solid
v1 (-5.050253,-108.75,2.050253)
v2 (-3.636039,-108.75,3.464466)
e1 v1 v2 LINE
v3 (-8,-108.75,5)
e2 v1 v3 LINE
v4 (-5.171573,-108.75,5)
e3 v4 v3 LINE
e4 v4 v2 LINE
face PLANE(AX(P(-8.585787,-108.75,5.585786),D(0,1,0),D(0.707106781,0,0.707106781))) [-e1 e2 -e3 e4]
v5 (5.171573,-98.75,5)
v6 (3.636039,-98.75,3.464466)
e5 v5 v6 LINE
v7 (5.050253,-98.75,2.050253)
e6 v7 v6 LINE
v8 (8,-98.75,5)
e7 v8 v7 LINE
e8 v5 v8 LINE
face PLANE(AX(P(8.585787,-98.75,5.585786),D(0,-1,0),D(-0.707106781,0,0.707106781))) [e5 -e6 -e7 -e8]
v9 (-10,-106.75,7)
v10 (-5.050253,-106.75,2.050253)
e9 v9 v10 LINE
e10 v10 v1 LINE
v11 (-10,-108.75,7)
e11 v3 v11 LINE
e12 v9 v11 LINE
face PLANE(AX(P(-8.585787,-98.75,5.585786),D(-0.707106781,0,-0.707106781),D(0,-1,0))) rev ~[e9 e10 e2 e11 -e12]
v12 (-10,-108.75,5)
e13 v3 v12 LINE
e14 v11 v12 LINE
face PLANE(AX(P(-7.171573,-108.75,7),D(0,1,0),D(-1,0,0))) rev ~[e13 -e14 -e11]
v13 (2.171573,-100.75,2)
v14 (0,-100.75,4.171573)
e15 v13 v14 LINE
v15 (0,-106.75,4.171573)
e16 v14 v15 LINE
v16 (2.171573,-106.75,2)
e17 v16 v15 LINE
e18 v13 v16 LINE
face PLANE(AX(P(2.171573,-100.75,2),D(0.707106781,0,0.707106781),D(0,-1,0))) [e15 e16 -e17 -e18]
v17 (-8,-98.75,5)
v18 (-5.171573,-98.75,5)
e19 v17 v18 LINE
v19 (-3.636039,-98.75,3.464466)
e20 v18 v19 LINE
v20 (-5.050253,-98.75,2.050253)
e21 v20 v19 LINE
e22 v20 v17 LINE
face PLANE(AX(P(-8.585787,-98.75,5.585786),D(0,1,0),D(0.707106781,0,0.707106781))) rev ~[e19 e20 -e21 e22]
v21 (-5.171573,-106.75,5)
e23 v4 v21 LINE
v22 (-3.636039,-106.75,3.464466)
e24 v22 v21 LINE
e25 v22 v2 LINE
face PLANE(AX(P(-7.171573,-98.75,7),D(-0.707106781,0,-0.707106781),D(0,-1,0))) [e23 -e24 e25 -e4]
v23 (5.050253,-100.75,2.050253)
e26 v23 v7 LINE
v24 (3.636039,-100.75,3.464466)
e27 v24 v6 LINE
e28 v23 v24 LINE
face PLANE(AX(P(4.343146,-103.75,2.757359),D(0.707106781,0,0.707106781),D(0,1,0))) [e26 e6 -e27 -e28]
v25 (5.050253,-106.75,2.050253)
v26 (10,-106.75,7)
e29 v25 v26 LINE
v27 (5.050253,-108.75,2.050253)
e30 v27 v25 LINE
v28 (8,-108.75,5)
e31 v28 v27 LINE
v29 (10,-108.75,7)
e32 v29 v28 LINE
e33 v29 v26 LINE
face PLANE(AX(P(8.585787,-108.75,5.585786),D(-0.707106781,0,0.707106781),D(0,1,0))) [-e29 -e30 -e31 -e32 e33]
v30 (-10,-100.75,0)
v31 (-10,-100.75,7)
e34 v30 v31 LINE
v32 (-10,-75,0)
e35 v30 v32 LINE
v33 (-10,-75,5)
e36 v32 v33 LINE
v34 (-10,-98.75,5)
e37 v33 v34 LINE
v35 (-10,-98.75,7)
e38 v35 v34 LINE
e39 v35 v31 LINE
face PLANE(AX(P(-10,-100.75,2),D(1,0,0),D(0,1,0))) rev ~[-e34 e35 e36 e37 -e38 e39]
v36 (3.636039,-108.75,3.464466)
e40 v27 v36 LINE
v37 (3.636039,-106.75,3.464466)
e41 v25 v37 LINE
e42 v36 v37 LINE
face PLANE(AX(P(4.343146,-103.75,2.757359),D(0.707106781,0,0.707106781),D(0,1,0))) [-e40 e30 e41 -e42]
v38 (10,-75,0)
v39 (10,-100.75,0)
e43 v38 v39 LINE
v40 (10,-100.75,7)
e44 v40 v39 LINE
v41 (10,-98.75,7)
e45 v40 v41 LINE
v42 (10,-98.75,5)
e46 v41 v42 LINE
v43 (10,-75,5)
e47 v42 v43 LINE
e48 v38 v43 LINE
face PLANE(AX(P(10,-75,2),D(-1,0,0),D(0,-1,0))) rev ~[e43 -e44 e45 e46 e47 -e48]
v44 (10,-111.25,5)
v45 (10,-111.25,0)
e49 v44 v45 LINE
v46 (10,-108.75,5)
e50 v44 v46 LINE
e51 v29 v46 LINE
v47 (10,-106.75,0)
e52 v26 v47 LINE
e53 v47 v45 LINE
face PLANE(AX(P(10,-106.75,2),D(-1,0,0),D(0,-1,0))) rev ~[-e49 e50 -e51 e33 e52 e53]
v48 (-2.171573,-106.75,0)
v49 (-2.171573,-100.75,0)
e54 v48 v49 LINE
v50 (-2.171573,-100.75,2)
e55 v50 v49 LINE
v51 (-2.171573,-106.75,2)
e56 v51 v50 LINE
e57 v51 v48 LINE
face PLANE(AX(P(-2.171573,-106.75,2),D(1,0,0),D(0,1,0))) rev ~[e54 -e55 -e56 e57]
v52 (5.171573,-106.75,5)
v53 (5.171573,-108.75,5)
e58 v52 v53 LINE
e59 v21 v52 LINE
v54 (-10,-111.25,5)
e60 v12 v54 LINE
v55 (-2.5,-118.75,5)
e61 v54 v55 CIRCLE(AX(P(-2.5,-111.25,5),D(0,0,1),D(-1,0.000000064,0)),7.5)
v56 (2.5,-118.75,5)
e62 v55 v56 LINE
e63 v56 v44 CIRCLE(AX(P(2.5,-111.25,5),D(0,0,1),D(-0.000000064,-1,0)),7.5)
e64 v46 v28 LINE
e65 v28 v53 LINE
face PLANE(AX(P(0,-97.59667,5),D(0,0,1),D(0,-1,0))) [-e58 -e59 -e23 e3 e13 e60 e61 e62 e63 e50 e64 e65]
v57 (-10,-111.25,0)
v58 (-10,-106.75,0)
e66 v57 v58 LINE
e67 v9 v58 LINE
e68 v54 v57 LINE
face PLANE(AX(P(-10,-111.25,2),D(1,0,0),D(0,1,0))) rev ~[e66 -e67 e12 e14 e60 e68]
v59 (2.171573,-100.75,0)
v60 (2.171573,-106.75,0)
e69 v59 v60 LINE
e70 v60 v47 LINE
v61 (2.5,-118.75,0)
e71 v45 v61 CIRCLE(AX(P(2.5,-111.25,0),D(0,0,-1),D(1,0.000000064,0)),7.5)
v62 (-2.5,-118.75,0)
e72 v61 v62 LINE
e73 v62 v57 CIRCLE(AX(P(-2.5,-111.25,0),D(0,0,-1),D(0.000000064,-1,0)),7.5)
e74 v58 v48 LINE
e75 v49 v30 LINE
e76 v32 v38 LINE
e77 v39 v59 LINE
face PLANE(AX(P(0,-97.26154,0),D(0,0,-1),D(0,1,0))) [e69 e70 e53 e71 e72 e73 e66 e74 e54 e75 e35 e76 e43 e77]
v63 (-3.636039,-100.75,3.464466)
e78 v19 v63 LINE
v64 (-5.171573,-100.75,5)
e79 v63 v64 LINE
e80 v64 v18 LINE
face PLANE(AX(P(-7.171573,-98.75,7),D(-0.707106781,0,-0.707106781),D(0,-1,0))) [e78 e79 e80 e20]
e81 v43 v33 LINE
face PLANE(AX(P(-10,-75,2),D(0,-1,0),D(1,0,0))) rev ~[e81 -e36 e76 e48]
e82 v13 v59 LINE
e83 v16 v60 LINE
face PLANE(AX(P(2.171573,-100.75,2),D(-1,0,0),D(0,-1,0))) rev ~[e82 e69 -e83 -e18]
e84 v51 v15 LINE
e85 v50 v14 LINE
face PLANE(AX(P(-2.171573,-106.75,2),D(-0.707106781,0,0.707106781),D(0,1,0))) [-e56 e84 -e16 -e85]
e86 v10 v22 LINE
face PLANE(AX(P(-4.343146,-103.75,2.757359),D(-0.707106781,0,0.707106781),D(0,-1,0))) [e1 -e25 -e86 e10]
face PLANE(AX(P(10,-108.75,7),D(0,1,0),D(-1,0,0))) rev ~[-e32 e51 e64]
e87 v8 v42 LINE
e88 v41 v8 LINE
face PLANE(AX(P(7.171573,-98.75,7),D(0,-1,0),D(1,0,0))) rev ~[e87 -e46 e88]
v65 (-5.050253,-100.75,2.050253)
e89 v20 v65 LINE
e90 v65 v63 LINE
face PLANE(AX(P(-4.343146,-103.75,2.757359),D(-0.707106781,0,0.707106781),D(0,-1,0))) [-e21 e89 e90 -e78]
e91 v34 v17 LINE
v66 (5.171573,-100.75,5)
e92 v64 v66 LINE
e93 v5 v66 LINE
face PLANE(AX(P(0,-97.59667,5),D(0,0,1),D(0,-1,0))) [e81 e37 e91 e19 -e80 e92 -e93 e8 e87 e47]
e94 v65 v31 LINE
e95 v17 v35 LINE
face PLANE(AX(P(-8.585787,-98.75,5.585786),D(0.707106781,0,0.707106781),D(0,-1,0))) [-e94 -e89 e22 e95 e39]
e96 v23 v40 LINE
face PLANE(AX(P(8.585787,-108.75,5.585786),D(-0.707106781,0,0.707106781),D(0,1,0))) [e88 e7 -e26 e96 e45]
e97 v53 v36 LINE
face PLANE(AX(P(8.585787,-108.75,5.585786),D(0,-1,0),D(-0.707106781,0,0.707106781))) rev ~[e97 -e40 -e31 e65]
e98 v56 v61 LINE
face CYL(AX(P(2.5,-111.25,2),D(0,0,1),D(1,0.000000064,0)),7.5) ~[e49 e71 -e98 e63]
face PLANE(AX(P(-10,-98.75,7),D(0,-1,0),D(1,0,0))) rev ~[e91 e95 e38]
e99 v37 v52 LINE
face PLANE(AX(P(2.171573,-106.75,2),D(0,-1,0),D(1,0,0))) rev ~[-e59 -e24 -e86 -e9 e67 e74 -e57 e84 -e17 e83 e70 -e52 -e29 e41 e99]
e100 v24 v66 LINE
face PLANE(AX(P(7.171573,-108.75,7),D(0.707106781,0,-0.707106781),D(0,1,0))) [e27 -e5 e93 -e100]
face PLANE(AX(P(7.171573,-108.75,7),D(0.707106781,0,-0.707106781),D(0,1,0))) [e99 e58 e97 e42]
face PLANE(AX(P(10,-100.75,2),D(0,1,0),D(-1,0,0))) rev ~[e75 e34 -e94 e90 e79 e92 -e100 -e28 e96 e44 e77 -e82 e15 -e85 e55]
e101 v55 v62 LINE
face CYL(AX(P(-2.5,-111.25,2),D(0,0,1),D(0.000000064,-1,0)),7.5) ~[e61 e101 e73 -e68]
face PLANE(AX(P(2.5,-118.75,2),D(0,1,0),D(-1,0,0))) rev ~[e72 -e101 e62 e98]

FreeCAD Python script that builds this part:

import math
import FreeCAD as App
import Part
import Sketcher

doc = App.newDocument("Part")
params = doc.addObject("Spreadsheet::Sheet", "Params")
for row, (alias, value) in enumerate([
    ("sketch1_radius", "7.5 mm"),
    ("sketch1_width", "20 mm"),
    ("sketch1_height", "36.25 mm"),
    ("pad1_length", "5 mm"),
    ("sketch2_height", "5 mm"),
    ("sketch2_length", "2.000001 mm"),
    ("pocket1_length", "3 mm"),
    ("pocket1_length2", "3 mm"),
    ("sketch3_width", "10 mm"),
    ("sketch3_height", "2 mm"),
    ("pocket2_length", "5 mm"),
    ("pocket2_length2", "2 mm"),
    ("sketch4_width", "10 mm"),
    ("sketch4_height", "2 mm"),
    ("pocket3_length", "5 mm"),
    ("pocket3_length2", "2 mm"),
    ("sketch5_width", "6 mm"),
    ("sketch5_height", "5 mm"),
    ("pocket4_length", "5 mm"),
    ("sketch6_width", "6 mm"),
    ("sketch6_height", "5 mm"),
    ("pocket5_length", "5 mm"),
    ("sketch7_radius", "7.5 mm"),
    ("sketch7_width", "5 mm"),
    ("sketch7_height", "6 mm"),
    ("sketch7_height2", "4.5 mm"),
    ("sketch7_height3", "25.75 mm"),
    ("pad2_length", "2 mm"),
    ("sketch8_radius", "7.5 mm"),
    ("sketch8_width", "20 mm"),
    ("sketch8_height", "6 mm"),
    ("sketch8_height2", "2 mm"),
    ("sketch8_height3", "2.5 mm"),
    ("pocket6_length", "2 mm"),
    ("sketch9_width", "6 mm"),
    ("pocket7_length", "5 mm"),
    ("sketch10_width", "6 mm"),
    ("pocket8_length", "5 mm"),
], start=1):
    params.set(f"A{row}", alias)
    params.set(f"B{row}", "=" + value)
    params.setAlias(f"B{row}", alias)

body = doc.addObject("PartDesign::Body", "Body")

sketch1 = body.newObject("Sketcher::SketchObject", "Sketch")
sketch1.AttachmentSupport = (doc.getObject("XY_Plane"), [""])
sketch1.MapMode = "FlatFace"
sketch1.addGeometry(Part.LineSegment(App.Vector(-10, -28.75, 0), App.Vector(10, -28.75, 0)), False)
sketch1.addGeometry(Part.LineSegment(App.Vector(10, -28.75, 0), App.Vector(10, 7.5, 0)), False)
sketch1.addGeometry(Part.ArcOfCircle(Part.Circle(App.Vector(2.5, 7.5, 0), App.Vector(0, 0, 1), 7.5), math.radians(-0.000004), math.radians(90.000004)), False)
sketch1.addGeometry(Part.LineSegment(App.Vector(2.5, 15, 0), App.Vector(-2.5, 15, 0)), False)
sketch1.addGeometry(Part.ArcOfCircle(Part.Circle(App.Vector(-2.5, 7.5, 0), App.Vector(0, 0, 1), 7.5), math.radians(89.999996), math.radians(180.000004)), False)
sketch1.addGeometry(Part.LineSegment(App.Vector(-10, 7.5, 0), App.Vector(-10, -28.75, 0)), False)
sketch1.addConstraint(Sketcher.Constraint("Coincident", 0, 2, 1, 1))
sketch1.addConstraint(Sketcher.Constraint("Tangent", 1, 2, 2, 1))
sketch1.addConstraint(Sketcher.Constraint("Tangent", 2, 2, 3, 1))
sketch1.addConstraint(Sketcher.Constraint("Tangent", 3, 2, 4, 1))
sketch1.addConstraint(Sketcher.Constraint("Tangent", 4, 2, 5, 1))
sketch1.addConstraint(Sketcher.Constraint("Coincident", 5, 2, 0, 1))
sketch1.addConstraint(Sketcher.Constraint("Horizontal", 0))
sketch1.addConstraint(Sketcher.Constraint("Vertical", 1))
sketch1.addConstraint(Sketcher.Constraint("Horizontal", 3))
sketch1.addConstraint(Sketcher.Constraint("Vertical", 5))
sketch1.addConstraint(Sketcher.Constraint("Equal", 2, 4))
sketch1.addConstraint(Sketcher.Constraint("Radius", 2, 7.5))
sketch1.addConstraint(Sketcher.Constraint("DistanceX", 0, 1, 0, 2, 20.0))
sketch1.addConstraint(Sketcher.Constraint("DistanceX", -1, 1, 0, 2, 10.0))
sketch1.addConstraint(Sketcher.Constraint("DistanceY", -1, 1, 2, 2, 15.0))
sketch1.addConstraint(Sketcher.Constraint("DistanceY", 1, 1, 1, 2, 36.25))
sketch1.setExpression("Constraints[11]", "Params.sketch1_radius")
sketch1.setExpression("Constraints[12]", "Params.sketch1_width")
sketch1.setExpression("Constraints[15]", "Params.sketch1_height")
pad1 = body.newObject("PartDesign::Pad", "Pad")
pad1.Profile = sketch1
pad1.setExpression("Length", "Params.pad1_length")

sketch2 = body.newObject("Sketcher::SketchObject", "Sketch001")
sketch2.AttachmentSupport = (doc.getObject("XZ_Plane"), [""])
sketch2.MapMode = "FlatFace"
sketch2.addGeometry(Part.LineSegment(App.Vector(-10, 5, 0), App.Vector(-10, 0, 0)), False)
sketch2.addGeometry(Part.LineSegment(App.Vector(-10, 0, 0), App.Vector(-2.171573, 0, 0)), False)
sketch2.addGeometry(Part.LineSegment(App.Vector(-2.171573, 0, 0), App.Vector(-8.585786, 6.414214, 0)), False)
sketch2.addGeometry(Part.LineSegment(App.Vector(-8.585786, 6.414214, 0), App.Vector(-10, 5, 0)), False)
sketch2.addGeometry(Part.LineSegment(App.Vector(10, 0, 0), App.Vector(10, 5, 0)), False)
sketch2.addGeometry(Part.LineSegment(App.Vector(10, 5, 0), App.Vector(8.585786, 6.414214, 0)), False)
sketch2.addGeometry(Part.LineSegment(App.Vector(8.585786, 6.414214, 0), App.Vector(2.171573, 0, 0)), False)
sketch2.addGeometry(Part.LineSegment(App.Vector(2.171573, 0, 0), App.Vector(10, 0, 0)), False)
sketch2.addConstraint(Sketcher.Constraint("Coincident", 0, 2, 1, 1))
sketch2.addConstraint(Sketcher.Constraint("Coincident", 1, 2, 2, 1))
sketch2.addConstraint(Sketcher.Constraint("Coincident", 2, 2, 3, 1))
sketch2.addConstraint(Sketcher.Constraint("Coincident", 3, 2, 0, 1))
sketch2.addConstraint(Sketcher.Constraint("Coincident", 4, 2, 5, 1))
sketch2.addConstraint(Sketcher.Constraint("Coincident", 5, 2, 6, 1))
sketch2.addConstraint(Sketcher.Constraint("Coincident", 6, 2, 7, 1))
sketch2.addConstraint(Sketcher.Constraint("Coincident", 7, 2, 4, 1))
sketch2.addConstraint(Sketcher.Constraint("Vertical", 0))
sketch2.addConstraint(Sketcher.Constraint("Horizontal", 1))
sketch2.addConstraint(Sketcher.Constraint("Vertical", 4))
sketch2.addConstraint(Sketcher.Constraint("Horizontal", 7))
sketch2.addConstraint(Sketcher.Constraint("Symmetric", 1, 2, 6, 2, -1, 1))
sketch2.addConstraint(Sketcher.Constraint("Symmetric", 3, 2, 4, 2, -2))
sketch2.addConstraint(Sketcher.Constraint("Symmetric", 2, 2, 5, 2, -2))
sketch2.addConstraint(Sketcher.Constraint("PointOnObject", 0, 2, -1))
sketch2.addConstraint(Sketcher.Constraint("Perpendicular", 2, 3))
sketch2.addConstraint(Sketcher.Constraint("Perpendicular", 3, 5))
sketch2.addConstraint(Sketcher.Constraint("DistanceY", 0, 2, 0, 1, 5.0))
sketch2.addConstraint(Sketcher.Constraint("Distance", 3, 2.000001))
sketch2.addConstraint(Sketcher.Constraint("DistanceX", 0, 2, -1, 1, 10.0))
sketch2.setExpression("Constraints[18]", "Params.sketch2_height")
sketch2.setExpression("Constraints[19]", "Params.sketch2_length")
pocket1 = body.newObject("PartDesign::Pocket", "Pocket")
pocket1.Profile = sketch2
pocket1.Type = "TwoLengths"
pocket1.setExpression("Length", "Params.pocket1_length")
pocket1.setExpression("Length2", "Params.pocket1_length2")

sketch3 = body.newObject("Sketcher::SketchObject", "Sketch002")
sketch3.Placement = App.Placement(App.Vector(-7.171573, 3, 5), App.Rotation(App.Vector(0, -1, 0), App.Vector(0.707106781, 0, 0.707106781), App.Vector(-0.707106781, 0, 0.707106781), "ZXY"))
sketch3.addGeometry(Part.LineSegment(App.Vector(-2, 0, 0), App.Vector(-2, -2, 0)), False)
sketch3.addGeometry(Part.LineSegment(App.Vector(-2, -2, 0), App.Vector(8, -2, 0)), False)
sketch3.addGeometry(Part.LineSegment(App.Vector(8, -2, 0), App.Vector(8, 0, 0)), False)
sketch3.addGeometry(Part.LineSegment(App.Vector(8, 0, 0), App.Vector(-2, 0, 0)), False)
sketch3.addConstraint(Sketcher.Constraint("Coincident", 0, 2, 1, 1))
sketch3.addConstraint(Sketcher.Constraint("Coincident", 1, 2, 2, 1))
sketch3.addConstraint(Sketcher.Constraint("Coincident", 2, 2, 3, 1))
sketch3.addConstraint(Sketcher.Constraint("Coincident", 3, 2, 0, 1))
sketch3.addConstraint(Sketcher.Constraint("Vertical", 0))
sketch3.addConstraint(Sketcher.Constraint("Horizontal", 1))
sketch3.addConstraint(Sketcher.Constraint("Vertical", 2))
sketch3.addConstraint(Sketcher.Constraint("Horizontal", 3))
sketch3.addConstraint(Sketcher.Constraint("PointOnObject", 2, 2, -1))
sketch3.addConstraint(Sketcher.Constraint("DistanceX", 1, 1, 1, 2, 10.0))
sketch3.addConstraint(Sketcher.Constraint("DistanceY", 0, 2, 0, 1, 2.0))
sketch3.addConstraint(Sketcher.Constraint("DistanceX", 0, 2, -1, 1, 2.0))
sketch3.setExpression("Constraints[9]", "Params.sketch3_width")
sketch3.setExpression("Constraints[10]", "Params.sketch3_height")
pocket2 = body.newObject("PartDesign::Pocket", "Pocket001")
pocket2.Profile = sketch3
pocket2.Type = "TwoLengths"
pocket2.setExpression("Length", "Params.pocket2_length")
pocket2.setExpression("Length2", "Params.pocket2_length2")

sketch4 = body.newObject("Sketcher::SketchObject", "Sketch003")
sketch4.Placement = App.Placement(App.Vector(7.171573, 3, 5), App.Rotation(App.Vector(0, 1, 0), App.Vector(-0.707106781, 0, 0.707106781), App.Vector(0.707106781, 0, 0.707106781), "ZXY"))
sketch4.addGeometry(Part.LineSegment(App.Vector(-8, 0, 0), App.Vector(-8, -2, 0)), False)
sketch4.addGeometry(Part.LineSegment(App.Vector(-8, -2, 0), App.Vector(2, -2, 0)), False)
sketch4.addGeometry(Part.LineSegment(App.Vector(2, -2, 0), App.Vector(2, 0, 0)), False)
sketch4.addGeometry(Part.LineSegment(App.Vector(2, 0, 0), App.Vector(-8, 0, 0)), False)
sketch4.addConstraint(Sketcher.Constraint("Coincident", 0, 2, 1, 1))
sketch4.addConstraint(Sketcher.Constraint("Coincident", 1, 2, 2, 1))
sketch4.addConstraint(Sketcher.Constraint("Coincident", 2, 2, 3, 1))
sketch4.addConstraint(Sketcher.Constraint("Coincident", 3, 2, 0, 1))
sketch4.addConstraint(Sketcher.Constraint("Vertical", 0))
sketch4.addConstraint(Sketcher.Constraint("Horizontal", 1))
sketch4.addConstraint(Sketcher.Constraint("Vertical", 2))
sketch4.addConstraint(Sketcher.Constraint("Horizontal", 3))
sketch4.addConstraint(Sketcher.Constraint("PointOnObject", 2, 2, -1))
sketch4.addConstraint(Sketcher.Constraint("DistanceX", 1, 1, 1, 2, 10.0))
sketch4.addConstraint(Sketcher.Constraint("DistanceY", 0, 2, 0, 1, 2.0))
sketch4.addConstraint(Sketcher.Constraint("DistanceX", 0, 2, -1, 1, 8.0))
sketch4.setExpression("Constraints[9]", "Params.sketch4_width")
sketch4.setExpression("Constraints[10]", "Params.sketch4_height")
pocket3 = body.newObject("PartDesign::Pocket", "Pocket002")
pocket3.Profile = sketch4
pocket3.Type = "TwoLengths"
pocket3.setExpression("Length", "Params.pocket3_length")
pocket3.setExpression("Length2", "Params.pocket3_length2")

sketch5 = body.newObject("Sketcher::SketchObject", "Sketch004")
sketch5.Placement = App.Placement(App.Vector(-5.403806, 0, 3.232233), App.Rotation(App.Vector(0, 1, 0), App.Vector(0.707106781, 0, -0.707106781), App.Vector(-0.707106781, 0, -0.707106781), "ZXY"))
sketch5.addGeometry(Part.LineSegment(App.Vector(-3, 2.5, 0), App.Vector(-3, -2.5, 0)), False)
sketch5.addGeometry(Part.LineSegment(App.Vector(-3, -2.5, 0), App.Vector(3, -2.5, 0)), False)
sketch5.addGeometry(Part.LineSegment(App.Vector(3, -2.5, 0), App.Vector(3, 2.5, 0)), False)
sketch5.addGeometry(Part.LineSegment(App.Vector(3, 2.5, 0), App.Vector(-3, 2.5, 0)), False)
sketch5.addConstraint(Sketcher.Constraint("Coincident", 0, 2, 1, 1))
sketch5.addConstraint(Sketcher.Constraint("Coincident", 1, 2, 2, 1))
sketch5.addConstraint(Sketcher.Constraint("Coincident", 2, 2, 3, 1))
sketch5.addConstraint(Sketcher.Constraint("Coincident", 3, 2, 0, 1))
sketch5.addConstraint(Sketcher.Constraint("Vertical", 0))
sketch5.addConstraint(Sketcher.Constraint("Horizontal", 1))
sketch5.addConstraint(Sketcher.Constraint("Vertical", 2))
sketch5.addConstraint(Sketcher.Constraint("Horizontal", 3))
sketch5.addConstraint(Sketcher.Constraint("Symmetric", 0, 2, 2, 2, -1, 1))
sketch5.addConstraint(Sketcher.Constraint("DistanceX", 1, 1, 1, 2, 6.0))
sketch5.addConstraint(Sketcher.Constraint("DistanceY", 0, 2, 0, 1, 5.0))
sketch5.setExpression("Constraints[9]", "Params.sketch5_width")
sketch5.setExpression("Constraints[10]", "Params.sketch5_height")
pocket4 = body.newObject("PartDesign::Pocket", "Pocket003")
pocket4.Profile = sketch5
pocket4.setExpression("Length", "Params.pocket4_length")

sketch6 = body.newObject("Sketcher::SketchObject", "Sketch005")
sketch6.Placement = App.Placement(App.Vector(5.403806, 0, 3.232233), App.Rotation(App.Vector(0, -1, 0), App.Vector(-0.707106781, 0, -0.707106781), App.Vector(0.707106781, 0, -0.707106781), "ZXY"))
sketch6.addGeometry(Part.LineSegment(App.Vector(-3, 2.5, 0), App.Vector(-3, -2.5, 0)), False)
sketch6.addGeometry(Part.LineSegment(App.Vector(-3, -2.5, 0), App.Vector(3, -2.5, 0)), False)
sketch6.addGeometry(Part.LineSegment(App.Vector(3, -2.5, 0), App.Vector(3, 2.5, 0)), False)
sketch6.addGeometry(Part.LineSegment(App.Vector(3, 2.5, 0), App.Vector(-3, 2.5, 0)), False)
sketch6.addConstraint(Sketcher.Constraint("Coincident", 0, 2, 1, 1))
sketch6.addConstraint(Sketcher.Constraint("Coincident", 1, 2, 2, 1))
sketch6.addConstraint(Sketcher.Constraint("Coincident", 2, 2, 3, 1))
sketch6.addConstraint(Sketcher.Constraint("Coincident", 3, 2, 0, 1))
sketch6.addConstraint(Sketcher.Constraint("Vertical", 0))
sketch6.addConstraint(Sketcher.Constraint("Horizontal", 1))
sketch6.addConstraint(Sketcher.Constraint("Vertical", 2))
sketch6.addConstraint(Sketcher.Constraint("Horizontal", 3))
sketch6.addConstraint(Sketcher.Constraint("Symmetric", 0, 2, 2, 2, -1, 1))
sketch6.addConstraint(Sketcher.Constraint("DistanceX", 1, 1, 1, 2, 6.0))
sketch6.addConstraint(Sketcher.Constraint("DistanceY", 0, 2, 0, 1, 5.0))
sketch6.setExpression("Constraints[9]", "Params.sketch6_width")
sketch6.setExpression("Constraints[10]", "Params.sketch6_height")
pocket5 = body.newObject("PartDesign::Pocket", "Pocket004")
pocket5.Profile = sketch6
pocket5.setExpression("Length", "Params.pocket5_length")

sketch7 = body.newObject("Sketcher::SketchObject", "Sketch006")
sketch7.AttachmentSupport = (doc.getObject("XY_Plane"), [""])
sketch7.MapMode = "FlatFace"
sketch7.addGeometry(Part.LineSegment(App.Vector(-10, -28.75, 0), App.Vector(-10, -3, 0)), False)
sketch7.addGeometry(Part.LineSegment(App.Vector(-10, -3, 0), App.Vector(-2.171573, -3, 0)), False)
sketch7.addGeometry(Part.LineSegment(App.Vector(-2.171573, -3, 0), App.Vector(-2.171573, 3, 0)), False)
sketch7.addGeometry(Part.LineSegment(App.Vector(-2.171573, 3, 0), App.Vector(-10, 3, 0)), False)
sketch7.addGeometry(Part.LineSegment(App.Vector(-10, 3, 0), App.Vector(-10, 7.5, 0)), False)
sketch7.addGeometry(Part.ArcOfCircle(Part.Circle(App.Vector(-2.5, 7.5, 0), App.Vector(0, 0, 1), 7.5), math.radians(89.999996), math.radians(180.000004)), False)
sketch7.addGeometry(Part.LineSegment(App.Vector(-2.5, 15, 0), App.Vector(2.5, 15, 0)), False)
sketch7.addGeometry(Part.ArcOfCircle(Part.Circle(App.Vector(2.5, 7.5, 0), App.Vector(0, 0, 1), 7.5), math.radians(-0.000004), math.radians(90.000004)), False)
sketch7.addGeometry(Part.LineSegment(App.Vector(10, 7.5, 0), App.Vector(10, 3, 0)), False)
sketch7.addGeometry(Part.LineSegment(App.Vector(10, 3, 0), App.Vector(2.171573, 3, 0)), False)
sketch7.addGeometry(Part.LineSegment(App.Vector(2.171573, 3, 0), App.Vector(2.171573, -3, 0)), False)
sketch7.addGeometry(Part.LineSegment(App.Vector(2.171573, -3, 0), App.Vector(10, -3, 0)), False)
sketch7.addGeometry(Part.LineSegment(App.Vector(10, -3, 0), App.Vector(10, -28.75, 0)), False)
sketch7.addGeometry(Part.LineSegment(App.Vector(10, -28.75, 0), App.Vector(-10, -28.75, 0)), False)
sketch7.addConstraint(Sketcher.Constraint("Coincident", 0, 2, 1, 1))
sketch7.addConstraint(Sketcher.Constraint("Coincident", 1, 2, 2, 1))
sketch7.addConstraint(Sketcher.Constraint("Coincident", 2, 2, 3, 1))
sketch7.addConstraint(Sketcher.Constraint("Coincident", 3, 2, 4, 1))
sketch7.addConstraint(Sketcher.Constraint("Tangent", 4, 2, 5, 2))
sketch7.addConstraint(Sketcher.Constraint("Tangent", 5, 1, 6, 1))
sketch7.addConstraint(Sketcher.Constraint("Tangent", 6, 2, 7, 2))
sketch7.addConstraint(Sketcher.Constraint("Tangent", 7, 1, 8, 1))
sketch7.addConstraint(Sketcher.Constraint("Coincident", 8, 2, 9, 1))
sketch7.addConstraint(Sketcher.Constraint("Coincident", 9, 2, 10, 1))
sketch7.addConstraint(Sketcher.Constraint("Coincident", 10, 2, 11, 1))
sketch7.addConstraint(Sketcher.Constraint("Coincident", 11, 2, 12, 1))
sketch7.addConstraint(Sketcher.Constraint("Coincident", 12, 2, 13, 1))
sketch7.addConstraint(Sketcher.Constraint("Coincident", 13, 2, 0, 1))
sketch7.addConstraint(Sketcher.Constraint("Vertical", 0))
sketch7.addConstraint(Sketcher.Constraint("Horizontal", 1))
sketch7.addConstraint(Sketcher.Constraint("Vertical", 2))
sketch7.addConstraint(Sketcher.Constraint("Horizontal", 3))
sketch7.addConstraint(Sketcher.Constraint("Vertical", 4))
sketch7.addConstraint(Sketcher.Constraint("Horizontal", 6))
sketch7.addConstraint(Sketcher.Constraint("Vertical", 8))
sketch7.addConstraint(Sketcher.Constraint("Horizontal", 9))
sketch7.addConstraint(Sketcher.Constraint("Vertical", 10))
sketch7.addConstraint(Sketcher.Constraint("Horizontal", 11))
sketch7.addConstraint(Sketcher.Constraint("Vertical", 12))
sketch7.addConstraint(Sketcher.Constraint("Horizontal", 13))
sketch7.addConstraint(Sketcher.Constraint("Equal", 5, 7))
sketch7.addConstraint(Sketcher.Constraint("Symmetric", 0, 2, 8, 2, -1, 1))
sketch7.addConstraint(Sketcher.Constraint("Symmetric", 2, 2, 10, 2, -1, 1))
sketch7.addConstraint(Sketcher.Constraint("Symmetric", 3, 2, 8, 2, -2))
sketch7.addConstraint(Sketcher.Constraint("Vertical", 8, 2, 11, 2))
sketch7.addConstraint(Sketcher.Constraint("Radius", 5, 7.5))
sketch7.addConstraint(Sketcher.Constraint("DistanceX", 6, 1, 6, 2, 5.0))
sketch7.addConstraint(Sketcher.Constraint("DistanceY", 2, 1, 2, 2, 6.0))
sketch7.addConstraint(Sketcher.Constraint("DistanceY", 4, 1, 4, 2, 4.5))
sketch7.addConstraint(Sketcher.Constraint("DistanceY", 0, 1, 0, 2, 25.75))
sketch7.addConstraint(Sketcher.Constraint("DistanceX", 1, 1, 1, 2, 7.828427))
sketch7.setExpression("Constraints[31]", "Params.sketch7_radius")
sketch7.setExpression("Constraints[32]", "Params.sketch7_width")
sketch7.setExpression("Constraints[33]", "Params.sketch7_height")
sketch7.setExpression("Constraints[34]", "Params.sketch7_height2")
sketch7.setExpression("Constraints[35]", "Params.sketch7_height3")
pad2 = body.newObject("PartDesign::Pad", "Pad001")
pad2.Profile = sketch7
pad2.setExpression("Length", "Params.pad2_length")
pad2.Reversed = True

sketch8 = body.newObject("Sketcher::SketchObject", "Sketch007")
sketch8.AttachmentSupport = (doc.getObject("XY_Plane"), [""])
sketch8.MapMode = "FlatFace"
sketch8.AttachmentOffset = App.Placement(App.Vector(0, 0, 5), App.Rotation())
sketch8.addGeometry(Part.LineSegment(App.Vector(-0.100505, 3, 0), App.Vector(-0.100505, -3, 0)), False)
sketch8.addGeometry(Part.LineSegment(App.Vector(-0.100505, -3, 0), App.Vector(-7.171573, -3, 0)), False)
sketch8.addGeometry(Part.LineSegment(App.Vector(-7.171573, -3, 0), App.Vector(-7.171573, -5, 0)), False)
sketch8.addGeometry(Part.LineSegment(App.Vector(-7.171573, -5, 0), App.Vector(-10, -5, 0)), False)
sketch8.addGeometry(Part.LineSegment(App.Vector(-10, -5, 0), App.Vector(-10, -28.75, 0)), False)
sketch8.addGeometry(Part.LineSegment(App.Vector(-10, -28.75, 0), App.Vector(10, -28.75, 0)), False)
sketch8.addGeometry(Part.LineSegment(App.Vector(10, -28.75, 0), App.Vector(10, -5, 0)), False)
sketch8.addGeometry(Part.LineSegment(App.Vector(10, -5, 0), App.Vector(7.171573, -5, 0)), False)
sketch8.addGeometry(Part.LineSegment(App.Vector(7.171573, -5, 0), App.Vector(7.171573, -3, 0)), False)
sketch8.addGeometry(Part.LineSegment(App.Vector(7.171573, -3, 0), App.Vector(0.100505, -3, 0)), False)
sketch8.addGeometry(Part.LineSegment(App.Vector(0.100505, -3, 0), App.Vector(0.100505, 3, 0)), False)
sketch8.addGeometry(Part.LineSegment(App.Vector(0.100505, 3, 0), App.Vector(7.171573, 3, 0)), False)
sketch8.addGeometry(Part.LineSegment(App.Vector(7.171573, 3, 0), App.Vector(7.171573, 5, 0)), False)
sketch8.addGeometry(Part.LineSegment(App.Vector(7.171573, 5, 0), App.Vector(10, 5, 0)), False)
sketch8.addGeometry(Part.LineSegment(App.Vector(10, 5, 0), App.Vector(10, 7.5, 0)), False)
sketch8.addGeometry(Part.ArcOfCircle(Part.Circle(App.Vector(2.5, 7.5, 0), App.Vector(0, 0, 1), 7.5), math.radians(-0.000004), math.radians(90.000004)), False)
sketch8.addGeometry(Part.LineSegment(App.Vector(2.5, 15, 0), App.Vector(-2.5, 15, 0)), False)
sketch8.addGeometry(Part.ArcOfCircle(Part.Circle(App.Vector(-2.5, 7.5, 0), App.Vector(0, 0, 1), 7.5), math.radians(89.999996), math.radians(180.000004)), False)
sketch8.addGeometry(Part.LineSegment(App.Vector(-10, 7.5, 0), App.Vector(-10, 5, 0)), False)
sketch8.addGeometry(Part.LineSegment(App.Vector(-10, 5, 0), App.Vector(-7.171573, 5, 0)), False)
sketch8.addGeometry(Part.LineSegment(App.Vector(-7.171573, 5, 0), App.Vector(-7.171573, 3, 0)), False)
sketch8.addGeometry(Part.LineSegment(App.Vector(-7.171573, 3, 0), App.Vector(-0.100505, 3, 0)), False)
sketch8.addConstraint(Sketcher.Constraint("Coincident", 0, 2, 1, 1))
sketch8.addConstraint(Sketcher.Constraint("Coincident", 1, 2, 2, 1))
sketch8.addConstraint(Sketcher.Constraint("Coincident", 2, 2, 3, 1))
sketch8.addConstraint(Sketcher.Constraint("Coincident", 3, 2, 4, 1))
sketch8.addConstraint(Sketcher.Constraint("Coincident", 4, 2, 5, 1))
sketch8.addConstraint(Sketcher.Constraint("Coincident", 5, 2, 6, 1))
sketch8.addConstraint(Sketcher.Constraint("Coincident", 6, 2, 7, 1))
sketch8.addConstraint(Sketcher.Constraint("Coincident", 7, 2, 8, 1))
sketch8.addConstraint(Sketcher.Constraint("Coincident", 8, 2, 9, 1))
sketch8.addConstraint(Sketcher.Constraint("Coincident", 9, 2, 10, 1))
sketch8.addConstraint(Sketcher.Constraint("Coincident", 10, 2, 11, 1))
sketch8.addConstraint(Sketcher.Constraint("Coincident", 11, 2, 12, 1))
sketch8.addConstraint(Sketcher.Constraint("Coincident", 12, 2, 13, 1))
sketch8.addConstraint(Sketcher.Constraint("Coincident", 13, 2, 14, 1))
sketch8.addConstraint(Sketcher.Constraint("Tangent", 14, 2, 15, 1))
sketch8.addConstraint(Sketcher.Constraint("Tangent", 15, 2, 16, 1))
sketch8.addConstraint(Sketcher.Constraint("Tangent", 16, 2, 17, 1))
sketch8.addConstraint(Sketcher.Constraint("Tangent", 17, 2, 18, 1))
sketch8.addConstraint(Sketcher.Constraint("Coincident", 18, 2, 19, 1))
sketch8.addConstraint(Sketcher.Constraint("Coincident", 19, 2, 20, 1))
sketch8.addConstraint(Sketcher.Constraint("Coincident", 20, 2, 21, 1))
sketch8.addConstraint(Sketcher.Constraint("Coincident", 21, 2, 0, 1))
sketch8.addConstraint(Sketcher.Constraint("Vertical", 0))
sketch8.addConstraint(Sketcher.Constraint("Horizontal", 1))
sketch8.addConstraint(Sketcher.Constraint("Vertical", 2))
sketch8.addConstraint(Sketcher.Constraint("Horizontal", 3))
sketch8.addConstraint(Sketcher.Constraint("Vertical", 4))
sketch8.addConstraint(Sketcher.Constraint("Horizontal", 5))
sketch8.addConstraint(Sketcher.Constraint("Vertical", 6))
sketch8.addConstraint(Sketcher.Constraint("Horizontal", 7))
sketch8.addConstraint(Sketcher.Constraint("Vertical", 8))
sketch8.addConstraint(Sketcher.Constraint("Horizontal", 9))
sketch8.addConstraint(Sketcher.Constraint("Vertical", 10))
sketch8.addConstraint(Sketcher.Constraint("Horizontal", 11))
sketch8.addConstraint(Sketcher.Constraint("Vertical", 12))
sketch8.addConstraint(Sketcher.Constraint("Horizontal", 13))
sketch8.addConstraint(Sketcher.Constraint("Vertical", 14))
sketch8.addConstraint(Sketcher.Constraint("Horizontal", 16))
sketch8.addConstraint(Sketcher.Constraint("Vertical", 18))
sketch8.addConstraint(Sketcher.Constraint("Horizontal", 19))
sketch8.addConstraint(Sketcher.Constraint("Vertical", 20))
sketch8.addConstraint(Sketcher.Constraint("Horizontal", 21))
sketch8.addConstraint(Sketcher.Constraint("Equal", 15, 17))
sketch8.addConstraint(Sketcher.Constraint("Symmetric", 0, 2, 10, 2, -1, 1))
sketch8.addConstraint(Sketcher.Constraint("Symmetric", 2, 2, 12, 2, -1, 1))
sketch8.addConstraint(Sketcher.Constraint("Symmetric", 6, 2, 18, 2, -1, 1))
sketch8.addConstraint(Sketcher.Constraint("Symmetric", 8, 2, 20, 2, -1, 1))
sketch8.addConstraint(Sketcher.Constraint("Symmetric", 3, 2, 6, 2, -2))
sketch8.addConstraint(Sketcher.Constraint("Symmetric", 1, 2, 8, 2, -2))
sketch8.addConstraint(Sketcher.Constraint("Vertical", 6, 2, 13, 2))
sketch8.addConstraint(Sketcher.Constraint("Radius", 15, 7.5))
sketch8.addConstraint(Sketcher.Constraint("DistanceX", 5, 1, 5, 2, 20.0))
sketch8.addConstraint(Sketcher.Constraint("DistanceY", 0, 2, 0, 1, 6.0))
sketch8.addConstraint(Sketcher.Constraint("DistanceY", 2, 2, 2, 1, 2.0))
sketch8.addConstraint(Sketcher.Constraint("DistanceY", 14, 1, 14, 2, 2.5))
sketch8.addConstraint(Sketcher.Constraint("DistanceY", 4, 2, 4, 1, 23.75))
sketch8.addConstraint(Sketcher.Constraint("DistanceX", 1, 2, 1, 1, 7.071068))
sketch8.addConstraint(Sketcher.Constraint("DistanceX", 3, 2, 3, 1, 2.828427))
sketch8.setExpression("Constraints[50]", "Params.sketch8_radius")
sketch8.setExpression("Constraints[51]", "Params.sketch8_width")
sketch8.setExpression("Constraints[52]", "Params.sketch8_height")
sketch8.setExpression("Constraints[53]", "Params.sketch8_height2")
sketch8.setExpression("Constraints[54]", "Params.sketch8_height3")
pocket6 = body.newObject("PartDesign::Pocket", "Pocket005")
pocket6.Profile = sketch8
pocket6.setExpression("Length", "Params.pocket6_length")

sketch9 = body.newObject("Sketcher::SketchObject", "Sketch008")
sketch9.Placement = App.Placement(App.Vector(-2.903806, 0, 0.732233), App.Rotation(App.Vector(0, 1, 0), App.Vector(0.707106781, 0, -0.707106781), App.Vector(-0.707106781, 0, -0.707106781), "ZXY"))
sketch9.addGeometry(Part.LineSegment(App.Vector(-3, 1.035534, 0), App.Vector(-3, -1.035534, 0)), False)
sketch9.addGeometry(Part.LineSegment(App.Vector(-3, -1.035534, 0), App.Vector(3, -1.035534, 0)), False)
sketch9.addGeometry(Part.LineSegment(App.Vector(3, -1.035534, 0), App.Vector(3, 1.035534, 0)), False)
sketch9.addGeometry(Part.LineSegment(App.Vector(3, 1.035534, 0), App.Vector(-3, 1.035534, 0)), False)
sketch9.addConstraint(Sketcher.Constraint("Coincident", 0, 2, 1, 1))
sketch9.addConstraint(Sketcher.Constraint("Coincident", 1, 2, 2, 1))
sketch9.addConstraint(Sketcher.Constraint("Coincident", 2, 2, 3, 1))
sketch9.addConstraint(Sketcher.Constraint("Coincident", 3, 2, 0, 1))
sketch9.addConstraint(Sketcher.Constraint("Vertical", 0))
sketch9.addConstraint(Sketcher.Constraint("Horizontal", 1))
sketch9.addConstraint(Sketcher.Constraint("Vertical", 2))
sketch9.addConstraint(Sketcher.Constraint("Horizontal", 3))
sketch9.addConstraint(Sketcher.Constraint("Symmetric", 0, 2, 2, 2, -1, 1))
sketch9.addConstraint(Sketcher.Constraint("DistanceX", 1, 1, 1, 2, 6.0))
sketch9.addConstraint(Sketcher.Constraint("DistanceY", 0, 2, 0, 1, 2.071068))
sketch9.setExpression("Constraints[9]", "Params.sketch9_width")
pocket7 = body.newObject("PartDesign::Pocket", "Pocket006")
pocket7.Profile = sketch9
pocket7.setExpression("Length", "Params.pocket7_length")

sketch10 = body.newObject("Sketcher::SketchObject", "Sketch009")
sketch10.Placement = App.Placement(App.Vector(2.903806, 0, 0.732233), App.Rotation(App.Vector(0, -1, 0), App.Vector(-0.707106781, 0, -0.707106781), App.Vector(0.707106781, 0, -0.707106781), "ZXY"))
sketch10.addGeometry(Part.LineSegment(App.Vector(-3, 1.035534, 0), App.Vector(-3, -1.035534, 0)), False)
sketch10.addGeometry(Part.LineSegment(App.Vector(-3, -1.035534, 0), App.Vector(3, -1.035534, 0)), False)
sketch10.addGeometry(Part.LineSegment(App.Vector(3, -1.035534, 0), App.Vector(3, 1.035534, 0)), False)
sketch10.addGeometry(Part.LineSegment(App.Vector(3, 1.035534, 0), App.Vector(-3, 1.035534, 0)), False)
sketch10.addConstraint(Sketcher.Constraint("Coincident", 0, 2, 1, 1))
sketch10.addConstraint(Sketcher.Constraint("Coincident", 1, 2, 2, 1))
sketch10.addConstraint(Sketcher.Constraint("Coincident", 2, 2, 3, 1))
sketch10.addConstraint(Sketcher.Constraint("Coincident", 3, 2, 0, 1))
sketch10.addConstraint(Sketcher.Constraint("Vertical", 0))
sketch10.addConstraint(Sketcher.Constraint("Horizontal", 1))
sketch10.addConstraint(Sketcher.Constraint("Vertical", 2))
sketch10.addConstraint(Sketcher.Constraint("Horizontal", 3))
sketch10.addConstraint(Sketcher.Constraint("Symmetric", 0, 2, 2, 2, -1, 1))
sketch10.addConstraint(Sketcher.Constraint("DistanceX", 1, 1, 1, 2, 6.0))
sketch10.addConstraint(Sketcher.Constraint("DistanceY", 0, 2, 0, 1, 2.071068))
sketch10.setExpression("Constraints[9]", "Params.sketch10_width")
pocket8 = body.newObject("PartDesign::Pocket", "Pocket007")
pocket8.Profile = sketch10
pocket8.setExpression("Length", "Params.pocket8_length")
body2 = doc.addObject("PartDesign::Body", "Body001")
doc.recompute()

body.Placement = App.Placement(App.Vector(0, -103.75, 2), App.Rotation(App.Vector(0, 0, 1), 180))
boolean = body2.newObject("PartDesign::Boolean", "Boolean")
boolean.Type = "Fuse"
boolean.addObjects([body])

doc.recompute()
